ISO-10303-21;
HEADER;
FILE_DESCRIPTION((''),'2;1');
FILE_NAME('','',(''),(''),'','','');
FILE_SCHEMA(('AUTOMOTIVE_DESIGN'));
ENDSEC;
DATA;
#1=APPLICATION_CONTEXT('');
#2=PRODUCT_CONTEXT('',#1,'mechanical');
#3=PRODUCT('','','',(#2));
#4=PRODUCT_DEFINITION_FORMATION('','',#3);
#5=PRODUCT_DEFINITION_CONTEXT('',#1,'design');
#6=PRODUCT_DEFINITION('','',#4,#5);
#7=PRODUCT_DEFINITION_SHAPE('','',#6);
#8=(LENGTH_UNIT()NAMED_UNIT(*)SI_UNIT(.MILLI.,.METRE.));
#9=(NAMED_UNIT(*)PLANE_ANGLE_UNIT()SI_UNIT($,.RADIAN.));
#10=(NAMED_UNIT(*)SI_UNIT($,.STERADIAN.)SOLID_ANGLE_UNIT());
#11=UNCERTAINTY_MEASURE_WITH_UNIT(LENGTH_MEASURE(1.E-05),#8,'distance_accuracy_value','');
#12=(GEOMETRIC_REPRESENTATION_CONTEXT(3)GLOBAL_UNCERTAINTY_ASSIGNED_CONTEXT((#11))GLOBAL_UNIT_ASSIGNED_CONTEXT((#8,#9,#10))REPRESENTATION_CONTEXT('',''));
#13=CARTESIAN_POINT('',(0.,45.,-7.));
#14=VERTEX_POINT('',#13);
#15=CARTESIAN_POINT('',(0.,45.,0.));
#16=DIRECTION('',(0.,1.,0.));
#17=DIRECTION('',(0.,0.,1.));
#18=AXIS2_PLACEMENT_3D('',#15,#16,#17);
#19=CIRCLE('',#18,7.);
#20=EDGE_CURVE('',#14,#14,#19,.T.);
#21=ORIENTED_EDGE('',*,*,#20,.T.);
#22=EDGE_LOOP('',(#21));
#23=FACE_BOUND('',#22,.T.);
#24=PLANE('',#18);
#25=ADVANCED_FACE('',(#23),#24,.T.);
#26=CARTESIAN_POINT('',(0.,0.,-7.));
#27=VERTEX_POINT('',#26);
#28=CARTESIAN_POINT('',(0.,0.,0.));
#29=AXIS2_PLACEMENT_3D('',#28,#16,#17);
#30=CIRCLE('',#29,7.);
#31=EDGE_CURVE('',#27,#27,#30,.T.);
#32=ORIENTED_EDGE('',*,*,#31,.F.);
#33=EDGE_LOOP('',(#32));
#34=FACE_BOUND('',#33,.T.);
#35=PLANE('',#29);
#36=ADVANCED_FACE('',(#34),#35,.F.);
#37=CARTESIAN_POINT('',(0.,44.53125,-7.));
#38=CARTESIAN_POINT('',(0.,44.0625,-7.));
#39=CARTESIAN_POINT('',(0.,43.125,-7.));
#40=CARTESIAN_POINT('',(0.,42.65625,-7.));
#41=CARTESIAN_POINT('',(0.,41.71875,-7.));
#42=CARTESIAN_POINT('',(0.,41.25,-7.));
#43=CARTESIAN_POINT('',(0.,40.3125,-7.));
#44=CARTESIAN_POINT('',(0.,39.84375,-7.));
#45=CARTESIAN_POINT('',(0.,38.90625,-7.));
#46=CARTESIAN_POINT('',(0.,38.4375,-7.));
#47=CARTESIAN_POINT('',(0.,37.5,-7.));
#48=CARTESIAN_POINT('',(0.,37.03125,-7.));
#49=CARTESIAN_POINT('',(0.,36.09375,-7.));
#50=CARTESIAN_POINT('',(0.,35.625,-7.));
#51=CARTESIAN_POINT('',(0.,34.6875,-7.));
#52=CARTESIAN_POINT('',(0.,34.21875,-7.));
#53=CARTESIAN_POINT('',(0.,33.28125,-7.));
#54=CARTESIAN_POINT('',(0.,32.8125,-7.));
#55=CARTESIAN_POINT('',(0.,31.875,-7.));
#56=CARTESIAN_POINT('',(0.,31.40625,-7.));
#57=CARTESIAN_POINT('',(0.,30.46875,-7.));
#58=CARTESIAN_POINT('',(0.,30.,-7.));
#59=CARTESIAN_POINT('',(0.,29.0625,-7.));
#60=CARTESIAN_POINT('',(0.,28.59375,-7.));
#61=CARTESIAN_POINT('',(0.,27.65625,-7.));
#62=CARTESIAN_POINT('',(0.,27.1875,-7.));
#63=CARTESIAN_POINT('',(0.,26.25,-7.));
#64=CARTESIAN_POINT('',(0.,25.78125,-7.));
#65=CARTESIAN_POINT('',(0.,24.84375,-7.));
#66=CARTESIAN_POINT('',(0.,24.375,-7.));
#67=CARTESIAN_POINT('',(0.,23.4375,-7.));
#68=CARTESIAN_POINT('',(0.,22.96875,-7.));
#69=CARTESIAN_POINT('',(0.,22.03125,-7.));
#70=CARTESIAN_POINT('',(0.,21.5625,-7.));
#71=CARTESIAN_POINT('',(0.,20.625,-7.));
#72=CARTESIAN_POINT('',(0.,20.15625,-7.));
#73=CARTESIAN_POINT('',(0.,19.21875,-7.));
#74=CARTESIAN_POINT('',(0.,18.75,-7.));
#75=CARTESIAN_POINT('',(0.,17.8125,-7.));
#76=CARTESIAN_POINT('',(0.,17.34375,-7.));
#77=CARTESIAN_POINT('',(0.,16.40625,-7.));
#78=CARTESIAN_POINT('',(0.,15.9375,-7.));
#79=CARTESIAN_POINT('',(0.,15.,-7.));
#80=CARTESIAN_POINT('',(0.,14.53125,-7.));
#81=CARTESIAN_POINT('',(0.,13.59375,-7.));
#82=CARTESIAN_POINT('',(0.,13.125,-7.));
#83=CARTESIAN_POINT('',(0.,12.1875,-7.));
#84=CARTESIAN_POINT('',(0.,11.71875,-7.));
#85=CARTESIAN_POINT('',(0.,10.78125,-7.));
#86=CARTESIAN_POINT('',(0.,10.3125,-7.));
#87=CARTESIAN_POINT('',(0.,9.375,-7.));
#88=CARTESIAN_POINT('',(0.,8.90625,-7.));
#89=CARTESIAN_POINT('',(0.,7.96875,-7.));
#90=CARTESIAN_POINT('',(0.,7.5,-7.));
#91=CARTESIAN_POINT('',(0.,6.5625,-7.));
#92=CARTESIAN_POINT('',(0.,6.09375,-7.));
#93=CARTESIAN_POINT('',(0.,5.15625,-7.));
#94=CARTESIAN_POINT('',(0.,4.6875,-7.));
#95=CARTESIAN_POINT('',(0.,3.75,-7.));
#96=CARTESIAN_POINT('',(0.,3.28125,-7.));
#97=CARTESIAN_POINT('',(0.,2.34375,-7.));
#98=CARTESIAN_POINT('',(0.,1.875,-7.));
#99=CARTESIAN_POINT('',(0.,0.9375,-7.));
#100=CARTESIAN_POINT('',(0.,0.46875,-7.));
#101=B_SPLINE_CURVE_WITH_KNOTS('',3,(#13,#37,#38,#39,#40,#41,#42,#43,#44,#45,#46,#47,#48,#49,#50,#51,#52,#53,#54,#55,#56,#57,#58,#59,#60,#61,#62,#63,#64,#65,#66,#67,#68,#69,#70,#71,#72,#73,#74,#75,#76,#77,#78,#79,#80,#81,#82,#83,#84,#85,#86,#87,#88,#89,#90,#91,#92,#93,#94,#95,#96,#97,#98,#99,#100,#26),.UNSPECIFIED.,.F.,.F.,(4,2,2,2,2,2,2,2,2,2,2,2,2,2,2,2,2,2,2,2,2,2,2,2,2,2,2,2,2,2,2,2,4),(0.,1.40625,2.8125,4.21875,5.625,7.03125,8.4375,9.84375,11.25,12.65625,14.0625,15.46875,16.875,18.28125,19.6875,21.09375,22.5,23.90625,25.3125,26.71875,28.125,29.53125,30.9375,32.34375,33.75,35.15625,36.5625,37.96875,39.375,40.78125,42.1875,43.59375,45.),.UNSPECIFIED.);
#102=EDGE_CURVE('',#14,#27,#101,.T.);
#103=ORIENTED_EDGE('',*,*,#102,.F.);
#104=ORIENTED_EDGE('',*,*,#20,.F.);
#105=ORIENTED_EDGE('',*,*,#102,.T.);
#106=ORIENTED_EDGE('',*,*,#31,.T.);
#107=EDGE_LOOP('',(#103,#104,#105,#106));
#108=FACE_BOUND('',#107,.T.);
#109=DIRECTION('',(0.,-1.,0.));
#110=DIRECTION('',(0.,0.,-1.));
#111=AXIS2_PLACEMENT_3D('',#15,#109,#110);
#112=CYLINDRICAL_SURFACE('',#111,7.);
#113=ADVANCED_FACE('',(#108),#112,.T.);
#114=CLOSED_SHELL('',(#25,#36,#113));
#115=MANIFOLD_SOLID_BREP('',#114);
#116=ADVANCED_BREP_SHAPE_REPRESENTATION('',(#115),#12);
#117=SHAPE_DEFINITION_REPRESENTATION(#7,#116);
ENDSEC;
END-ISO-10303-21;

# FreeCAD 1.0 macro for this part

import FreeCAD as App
import Part
import Sketcher

V = App.Vector
Q = App.Units.Quantity

doc = App.newDocument("Part")
body = doc.addObject("PartDesign::Body", "Body")

# Sketch on XZ plane
sketch1 = body.newObject("Sketcher::SketchObject", "Sketch")
sketch1.AttachmentSupport = (doc.getObject("XZ_Plane"), [""])
sketch1.MapMode = "FlatFace"
sketch1.addGeometry(Part.Circle(V(0, 0, 0), V(0, 0, 1), 7), False)
sketch1.addConstraint([
    Sketcher.Constraint("Coincident", 0, 3, -1, 1),
    Sketcher.Constraint("Diameter", 0, Q("14 mm")),
])
pad1 = body.newObject("PartDesign::Pad", "Pad")
pad1.Profile = sketch1
pad1.Length = 45
pad1.Reversed = True

doc.recompute()
